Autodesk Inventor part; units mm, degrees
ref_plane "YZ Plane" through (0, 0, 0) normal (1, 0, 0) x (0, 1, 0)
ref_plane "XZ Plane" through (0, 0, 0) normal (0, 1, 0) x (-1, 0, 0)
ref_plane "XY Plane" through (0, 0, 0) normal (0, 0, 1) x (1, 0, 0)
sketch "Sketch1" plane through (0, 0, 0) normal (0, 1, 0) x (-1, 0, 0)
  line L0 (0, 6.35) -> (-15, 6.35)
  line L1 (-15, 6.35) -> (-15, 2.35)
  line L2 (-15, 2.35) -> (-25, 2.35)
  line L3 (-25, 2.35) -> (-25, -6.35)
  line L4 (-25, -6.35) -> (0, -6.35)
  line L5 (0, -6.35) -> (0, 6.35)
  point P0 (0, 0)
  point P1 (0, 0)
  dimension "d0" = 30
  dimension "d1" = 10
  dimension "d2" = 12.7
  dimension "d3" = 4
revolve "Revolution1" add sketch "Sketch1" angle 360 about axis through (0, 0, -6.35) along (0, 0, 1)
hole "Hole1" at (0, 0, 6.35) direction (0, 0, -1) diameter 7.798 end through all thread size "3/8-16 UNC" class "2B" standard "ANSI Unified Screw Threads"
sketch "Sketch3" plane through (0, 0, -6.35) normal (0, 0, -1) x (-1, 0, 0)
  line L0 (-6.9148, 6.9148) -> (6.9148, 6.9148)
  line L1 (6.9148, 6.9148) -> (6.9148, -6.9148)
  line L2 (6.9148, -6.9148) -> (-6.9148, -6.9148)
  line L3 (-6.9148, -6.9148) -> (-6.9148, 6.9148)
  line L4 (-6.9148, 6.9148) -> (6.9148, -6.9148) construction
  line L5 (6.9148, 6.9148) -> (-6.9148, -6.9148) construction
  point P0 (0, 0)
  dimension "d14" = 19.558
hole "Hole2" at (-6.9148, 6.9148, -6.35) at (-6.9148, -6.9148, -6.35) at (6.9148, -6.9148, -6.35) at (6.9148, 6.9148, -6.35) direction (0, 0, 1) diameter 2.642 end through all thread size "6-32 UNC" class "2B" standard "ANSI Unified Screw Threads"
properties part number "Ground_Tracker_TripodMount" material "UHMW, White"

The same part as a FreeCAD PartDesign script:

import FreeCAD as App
import Part
import Sketcher
from FreeCAD import Vector
Q = App.Units.Quantity

doc = App.newDocument("Part")
body = doc.addObject("PartDesign::Body", "Body")

# Sketch on XZ plane
sketch1 = doc.addObject("Sketcher::SketchObject", "Sketch")
body.addObject(sketch1)
sketch1.AttachmentSupport = (doc.XZ_Plane, [""])
sketch1.MapMode = "FlatFace"
sketch1.addGeometry([
    Part.LineSegment(Vector(0, -6.35, 0), Vector(0, 6.35, 0)),  # 0
    Part.LineSegment(Vector(0, 6.35, 0), Vector(15, 6.35, 0)),  # 1
    Part.LineSegment(Vector(15, 6.35, 0), Vector(15, 2.35, 0)),  # 2
    Part.LineSegment(Vector(15, 2.35, 0), Vector(25, 2.35, 0)),  # 3
    Part.LineSegment(Vector(25, 2.35, 0), Vector(25, -6.35, 0)),  # 4
    Part.LineSegment(Vector(25, -6.35, 0), Vector(0, -6.35, 0)),  # 5
], False)
sketch1.addConstraint([
    Sketcher.Constraint("Coincident", 0, 2, 1, 1),
    Sketcher.Constraint("Coincident", 1, 2, 2, 1),
    Sketcher.Constraint("Coincident", 2, 2, 3, 1),
    Sketcher.Constraint("Coincident", 3, 2, 4, 1),
    Sketcher.Constraint("Coincident", 4, 2, 5, 1),
    Sketcher.Constraint("Coincident", 5, 2, 0, 1),
    Sketcher.Constraint("Vertical", 0),
    Sketcher.Constraint("Horizontal", 1),
    Sketcher.Constraint("Vertical", 2),
    Sketcher.Constraint("Horizontal", 3),
    Sketcher.Constraint("Vertical", 4),
    Sketcher.Constraint("Horizontal", 5),
    Sketcher.Constraint("Symmetric", 0, 2, 5, 2, -1, 1),
    Sketcher.Constraint("DistanceX", 3, 1, 3, 2, Q("10 mm")),
    Sketcher.Constraint("DistanceY", 2, 2, 2, 1, Q("4 mm")),
    Sketcher.Constraint("DistanceY", 0, 1, 0, 2, Q("12.7 mm")),
    Sketcher.Constraint("DistanceX", 1, 1, 1, 2, Q("15 mm")),
])
revolution = doc.addObject("PartDesign::Revolution", "Revolution")
body.addObject(revolution)
revolution.Profile = sketch1
revolution.ReferenceAxis = (sketch1, ["V_Axis"])
revolution.Angle = 360

# Sketch on XY plane
sketch2 = doc.addObject("Sketcher::SketchObject", "Sketch001")
body.addObject(sketch2)
sketch2.AttachmentSupport = (doc.XY_Plane, [""])
sketch2.MapMode = "FlatFace"
sketch2.AttachmentOffset = App.Placement(Vector(0, 0, 6.35), App.Rotation())
sketch2.addGeometry(Part.Circle(Vector(0, 0, 0), Vector(0, 0, 1), 3.899), False)
sketch2.addConstraint([
    Sketcher.Constraint("Coincident", 0, 3, -1, 1),
    Sketcher.Constraint("Diameter", 0, Q("7.798 mm")),
])
doc.recompute()
hole = doc.addObject("PartDesign::Hole", "Hole")
body.addObject(hole)
hole.Profile = sketch2
hole.ThreadType = "None"
hole.Diameter = 7.798
hole.DepthType = "ThroughAll"

# Sketch on XY plane
sketch3 = doc.addObject("Sketcher::SketchObject", "Sketch002")
body.addObject(sketch3)
sketch3.AttachmentSupport = (doc.XY_Plane, [""])
sketch3.MapMode = "FlatFace"
sketch3.AttachmentOffset = App.Placement(Vector(0, 0, -6.35), App.Rotation())
sketch3.addGeometry([
    Part.Circle(Vector(-6.9148, 6.9148, 0), Vector(0, 0, 1), 1.321),
    Part.Circle(Vector(-6.9148, -6.9148, 0), Vector(0, 0, 1), 1.321),
    Part.Circle(Vector(6.9148, -6.9148, 0), Vector(0, 0, 1), 1.321),
    Part.Circle(Vector(6.9148, 6.9148, 0), Vector(0, 0, 1), 1.321),
], False)
sketch3.addConstraint([
    Sketcher.Constraint("Equal", 0, 1),
    Sketcher.Constraint("Equal", 1, 2),
    Sketcher.Constraint("Equal", 2, 3),
    Sketcher.Constraint("Symmetric", 0, 3, 2, 3, -1, 1),
    Sketcher.Constraint("Symmetric", 1, 3, 3, 3, -1, 1),
    Sketcher.Constraint("Symmetric", 1, 3, 2, 3, -2),
    Sketcher.Constraint("Diameter", 0, Q("2.642 mm")),
    Sketcher.Constraint("DistanceX", 0, 3, -1, 1, Q("6.9148 mm")),
    Sketcher.Constraint("DistanceY", -1, 1, 0, 3, Q("6.9148 mm")),
])
doc.recompute()
hole2 = doc.addObject("PartDesign::Hole", "Hole001")
body.addObject(hole2)
hole2.Profile = sketch3
hole2.ThreadType = "None"
hole2.Diameter = 2.642
hole2.DepthType = "ThroughAll"
hole2.Reversed = True

doc.recompute()
